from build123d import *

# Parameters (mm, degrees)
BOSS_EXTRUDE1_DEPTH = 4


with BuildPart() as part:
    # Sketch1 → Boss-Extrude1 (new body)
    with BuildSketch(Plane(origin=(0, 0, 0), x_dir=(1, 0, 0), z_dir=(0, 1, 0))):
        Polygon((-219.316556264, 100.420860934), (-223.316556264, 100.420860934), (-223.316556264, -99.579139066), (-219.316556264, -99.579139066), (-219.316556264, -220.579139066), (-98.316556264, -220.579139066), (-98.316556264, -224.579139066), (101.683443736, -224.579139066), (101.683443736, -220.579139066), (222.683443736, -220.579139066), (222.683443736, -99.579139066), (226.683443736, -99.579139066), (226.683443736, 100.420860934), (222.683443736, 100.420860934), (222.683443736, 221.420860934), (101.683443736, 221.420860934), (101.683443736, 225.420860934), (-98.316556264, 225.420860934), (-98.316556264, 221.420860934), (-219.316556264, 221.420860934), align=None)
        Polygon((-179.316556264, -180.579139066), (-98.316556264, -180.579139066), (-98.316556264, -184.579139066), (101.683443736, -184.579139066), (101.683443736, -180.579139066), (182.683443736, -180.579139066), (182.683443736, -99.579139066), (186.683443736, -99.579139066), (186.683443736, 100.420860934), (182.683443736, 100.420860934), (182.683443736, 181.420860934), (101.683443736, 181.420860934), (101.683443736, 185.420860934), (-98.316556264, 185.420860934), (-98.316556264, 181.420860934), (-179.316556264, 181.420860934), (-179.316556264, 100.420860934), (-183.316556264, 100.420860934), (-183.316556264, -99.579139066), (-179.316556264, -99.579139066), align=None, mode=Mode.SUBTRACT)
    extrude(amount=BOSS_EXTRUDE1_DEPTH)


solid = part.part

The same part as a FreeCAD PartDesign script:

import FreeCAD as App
import Part
import Sketcher

V = App.Vector
Q = App.Units.Quantity

doc = App.newDocument("Part")
body = doc.addObject("PartDesign::Body", "Body")

sketch1 = body.newObject("Sketcher::SketchObject", "Sketch")
sketch1.AttachmentSupport = (doc.getObject("XZ_Plane"), [""])
sketch1.MapMode = "FlatFace"
sketch1.addGeometry([
    Part.LineSegment(V(-219.3, -100.4, 0), V(-223.3, -100.4, 0)),
    Part.LineSegment(V(-223.3, -100.4, 0), V(-223.3, 99.6, 0)),
    Part.LineSegment(V(-223.3, 99.6, 0), V(-219.3, 99.6, 0)),
    Part.LineSegment(V(-219.3, 99.6, 0), V(-219.3, 220.6, 0)),
    Part.LineSegment(V(-219.3, 220.6, 0), V(-98.3, 220.6, 0)),
    Part.LineSegment(V(-98.3, 220.6, 0), V(-98.3, 224.6, 0)),
    Part.LineSegment(V(-98.3, 224.6, 0), V(101.7, 224.6, 0)),
    Part.LineSegment(V(101.7, 224.6, 0), V(101.7, 220.6, 0)),
    Part.LineSegment(V(101.7, 220.6, 0), V(222.7, 220.6, 0)),
    Part.LineSegment(V(222.7, 220.6, 0), V(222.7, 99.6, 0)),
    Part.LineSegment(V(222.7, 99.6, 0), V(226.7, 99.6, 0)),
    Part.LineSegment(V(226.7, 99.6, 0), V(226.7, -100.4, 0)),
    Part.LineSegment(V(226.7, -100.4, 0), V(222.7, -100.4, 0)),
    Part.LineSegment(V(222.7, -100.4, 0), V(222.7, -221.4, 0)),
    Part.LineSegment(V(222.7, -221.4, 0), V(101.7, -221.4, 0)),
    Part.LineSegment(V(101.7, -221.4, 0), V(101.7, -225.4, 0)),
    Part.LineSegment(V(101.7, -225.4, 0), V(-98.3, -225.4, 0)),
    Part.LineSegment(V(-98.3, -225.4, 0), V(-98.3, -221.4, 0)),
    Part.LineSegment(V(-98.3, -221.4, 0), V(-219.3, -221.4, 0)),
    Part.LineSegment(V(-219.3, -221.4, 0), V(-219.3, -100.4, 0)),
    Part.LineSegment(V(-98.3, 180.6, 0), V(-179.3, 180.6, 0)),
    Part.LineSegment(V(-179.3, 180.6, 0), V(-179.3, 99.6, 0)),
    Part.LineSegment(V(-179.3, 99.6, 0), V(-183.3, 99.6, 0)),
    Part.LineSegment(V(-183.3, 99.6, 0), V(-183.3, -100.4, 0)),
    Part.LineSegment(V(-183.3, -100.4, 0), V(-179.3, -100.4, 0)),
    Part.LineSegment(V(-179.3, -100.4, 0), V(-179.3, -181.4, 0)),
    Part.LineSegment(V(-179.3, -181.4, 0), V(-98.3, -181.4, 0)),
    Part.LineSegment(V(-98.3, -181.4, 0), V(-98.3, -185.4, 0)),
    Part.LineSegment(V(-98.3, -185.4, 0), V(101.7, -185.4, 0)),
    Part.LineSegment(V(101.7, -185.4, 0), V(101.7, -181.4, 0)),
    Part.LineSegment(V(101.7, -181.4, 0), V(182.7, -181.4, 0)),
    Part.LineSegment(V(182.7, -181.4, 0), V(182.7, -100.4, 0)),
    Part.LineSegment(V(182.7, -100.4, 0), V(186.7, -100.4, 0)),
    Part.LineSegment(V(186.7, -100.4, 0), V(186.7, 99.6, 0)),
    Part.LineSegment(V(186.7, 99.6, 0), V(182.7, 99.6, 0)),
    Part.LineSegment(V(182.7, 99.6, 0), V(182.7, 180.6, 0)),
    Part.LineSegment(V(182.7, 180.6, 0), V(101.7, 180.6, 0)),
    Part.LineSegment(V(101.7, 180.6, 0), V(101.7, 184.6, 0)),
    Part.LineSegment(V(101.7, 184.6, 0), V(-98.3, 184.6, 0)),
    Part.LineSegment(V(-98.3, 184.6, 0), V(-98.3, 180.6, 0)),
], False)
sketch1.addConstraint([
    Sketcher.Constraint("Coincident", 0, 2, 1, 1),
    Sketcher.Constraint("Coincident", 1, 2, 2, 1),
    Sketcher.Constraint("Coincident", 2, 2, 3, 1),
    Sketcher.Constraint("Coincident", 3, 2, 4, 1),
    Sketcher.Constraint("Coincident", 4, 2, 5, 1),
    Sketcher.Constraint("Coincident", 5, 2, 6, 1),
    Sketcher.Constraint("Coincident", 6, 2, 7, 1),
    Sketcher.Constraint("Coincident", 7, 2, 8, 1),
    Sketcher.Constraint("Coincident", 8, 2, 9, 1),
    Sketcher.Constraint("Coincident", 9, 2, 10, 1),
    Sketcher.Constraint("Coincident", 10, 2, 11, 1),
    Sketcher.Constraint("Coincident", 11, 2, 12, 1),
    Sketcher.Constraint("Coincident", 12, 2, 13, 1),
    Sketcher.Constraint("Coincident", 13, 2, 14, 1),
    Sketcher.Constraint("Coincident", 14, 2, 15, 1),
    Sketcher.Constraint("Coincident", 15, 2, 16, 1),
    Sketcher.Constraint("Coincident", 16, 2, 17, 1),
    Sketcher.Constraint("Coincident", 17, 2, 18, 1),
    Sketcher.Constraint("Coincident", 18, 2, 19, 1),
    Sketcher.Constraint("Coincident", 19, 2, 0, 1),
    Sketcher.Constraint("Coincident", 20, 2, 21, 1),
    Sketcher.Constraint("Coincident", 21, 2, 22, 1),
    Sketcher.Constraint("Coincident", 22, 2, 23, 1),
    Sketcher.Constraint("Coincident", 23, 2, 24, 1),
    Sketcher.Constraint("Coincident", 24, 2, 25, 1),
    Sketcher.Constraint("Coincident", 25, 2, 26, 1),
    Sketcher.Constraint("Coincident", 26, 2, 27, 1),
    Sketcher.Constraint("Coincident", 27, 2, 28, 1),
    Sketcher.Constraint("Coincident", 28, 2, 29, 1),
    Sketcher.Constraint("Coincident", 29, 2, 30, 1),
    Sketcher.Constraint("Coincident", 30, 2, 31, 1),
    Sketcher.Constraint("Coincident", 31, 2, 32, 1),
    Sketcher.Constraint("Coincident", 32, 2, 33, 1),
    Sketcher.Constraint("Coincident", 33, 2, 34, 1),
    Sketcher.Constraint("Coincident", 34, 2, 35, 1),
    Sketcher.Constraint("Coincident", 35, 2, 36, 1),
    Sketcher.Constraint("Coincident", 36, 2, 37, 1),
    Sketcher.Constraint("Coincident", 37, 2, 38, 1),
    Sketcher.Constraint("Coincident", 38, 2, 39, 1),
    Sketcher.Constraint("Coincident", 39, 2, 20, 1),
    Sketcher.Constraint("Horizontal", 0),
    Sketcher.Constraint("Vertical", 1),
    Sketcher.Constraint("Horizontal", 2),
    Sketcher.Constraint("Vertical", 3),
    Sketcher.Constraint("Horizontal", 4),
    Sketcher.Constraint("Vertical", 5),
    Sketcher.Constraint("Horizontal", 6),
    Sketcher.Constraint("Vertical", 7),
    Sketcher.Constraint("Horizontal", 8),
    Sketcher.Constraint("Vertical", 9),
    Sketcher.Constraint("Horizontal", 10),
    Sketcher.Constraint("Vertical", 11),
    Sketcher.Constraint("Horizontal", 12),
    Sketcher.Constraint("Vertical", 13),
    Sketcher.Constraint("Horizontal", 14),
    Sketcher.Constraint("Vertical", 15),
    Sketcher.Constraint("Horizontal", 16),
    Sketcher.Constraint("Vertical", 17),
    Sketcher.Constraint("Horizontal", 18),
    Sketcher.Constraint("Vertical", 19),
    Sketcher.Constraint("Horizontal", 20),
    Sketcher.Constraint("Vertical", 21),
    Sketcher.Constraint("Horizontal", 22),
    Sketcher.Constraint("Vertical", 23),
    Sketcher.Constraint("Horizontal", 24),
    Sketcher.Constraint("Vertical", 25),
    Sketcher.Constraint("Horizontal", 26),
    Sketcher.Constraint("Vertical", 27),
    Sketcher.Constraint("Horizontal", 28),
    Sketcher.Constraint("Vertical", 29),
    Sketcher.Constraint("Horizontal", 30),
    Sketcher.Constraint("Vertical", 31),
    Sketcher.Constraint("Horizontal", 32),
    Sketcher.Constraint("Vertical", 33),
    Sketcher.Constraint("Horizontal", 34),
    Sketcher.Constraint("Vertical", 35),
    Sketcher.Constraint("Horizontal", 36),
    Sketcher.Constraint("Vertical", 37),
    Sketcher.Constraint("Horizontal", 38),
    Sketcher.Constraint("Vertical", 39),
    Sketcher.Constraint("Horizontal", 4, 2, 7, 2),
    Sketcher.Constraint("Horizontal", 2, 2, 9, 2),
    Sketcher.Constraint("Horizontal", 0, 2, 11, 2),
    Sketcher.Constraint("Horizontal", 14, 2, 17, 2),
    Sketcher.Constraint("Horizontal", 10, 2, 21, 2),
    Sketcher.Constraint("Horizontal", 19, 2, 23, 2),
    Sketcher.Constraint("Horizontal", 26, 2, 29, 2),
    Sketcher.Constraint("Horizontal", 24, 2, 31, 2),
    Sketcher.Constraint("Horizontal", 22, 2, 33, 2),
    Sketcher.Constraint("Horizontal", 20, 2, 35, 2),
    Sketcher.Constraint("Vertical", 9, 2, 12, 2),
    Sketcher.Constraint("Vertical", 7, 2, 14, 2),
    Sketcher.Constraint("Vertical", 5, 2, 16, 2),
    Sketcher.Constraint("Vertical", 3, 2, 18, 2),
    Sketcher.Constraint("Vertical", 21, 2, 24, 2),
    Sketcher.Constraint("Vertical", 17, 2, 26, 2),
    Sketcher.Constraint("Vertical", 15, 2, 28, 2),
    Sketcher.Constraint("Vertical", 31, 2, 34, 2),
    Sketcher.Constraint("Vertical", 29, 2, 36, 2),
    Sketcher.Constraint("Vertical", 27, 2, 38, 2),
    Sketcher.Constraint("Equal", 4, 8),
    Sketcher.Constraint("Equal", 2, 10),
    Sketcher.Constraint("Equal", 12, 22),
    Sketcher.Constraint("Equal", 26, 30),
    Sketcher.Constraint("Equal", 24, 32),
    Sketcher.Constraint("Equal", 38, 1),
    Sketcher.Constraint("Equal", 18, 3),
    Sketcher.Constraint("Equal", 34, 5),
    Sketcher.Constraint("Equal", 9, 13),
    Sketcher.Constraint("Equal", 7, 15),
    Sketcher.Constraint("Equal", 36, 21),
    Sketcher.Constraint("Equal", 21, 25),
    Sketcher.Constraint("Equal", 17, 27),
    Sketcher.Constraint("Equal", 29, 37),
    Sketcher.Constraint("DistanceX", 0, 2, 0, 1, Q("4 mm")),
    Sketcher.Constraint("DistanceX", 4, 1, 4, 2, Q("121 mm")),
    Sketcher.Constraint("DistanceX", 6, 1, 6, 2, Q("200 mm")),
    Sketcher.Constraint("DistanceX", 20, 2, 20, 1, Q("81 mm")),
    Sketcher.Constraint("DistanceY", 0, 2, -1, 1, Q("100.420861 mm")),
    Sketcher.Constraint("DistanceX", 0, 2, -1, 1, Q("223.316556 mm")),
])
pad1 = body.newObject("PartDesign::Pad", "Pad")
pad1.Profile = sketch1
pad1.Length = 4
pad1.Reversed = True

doc.recompute()
